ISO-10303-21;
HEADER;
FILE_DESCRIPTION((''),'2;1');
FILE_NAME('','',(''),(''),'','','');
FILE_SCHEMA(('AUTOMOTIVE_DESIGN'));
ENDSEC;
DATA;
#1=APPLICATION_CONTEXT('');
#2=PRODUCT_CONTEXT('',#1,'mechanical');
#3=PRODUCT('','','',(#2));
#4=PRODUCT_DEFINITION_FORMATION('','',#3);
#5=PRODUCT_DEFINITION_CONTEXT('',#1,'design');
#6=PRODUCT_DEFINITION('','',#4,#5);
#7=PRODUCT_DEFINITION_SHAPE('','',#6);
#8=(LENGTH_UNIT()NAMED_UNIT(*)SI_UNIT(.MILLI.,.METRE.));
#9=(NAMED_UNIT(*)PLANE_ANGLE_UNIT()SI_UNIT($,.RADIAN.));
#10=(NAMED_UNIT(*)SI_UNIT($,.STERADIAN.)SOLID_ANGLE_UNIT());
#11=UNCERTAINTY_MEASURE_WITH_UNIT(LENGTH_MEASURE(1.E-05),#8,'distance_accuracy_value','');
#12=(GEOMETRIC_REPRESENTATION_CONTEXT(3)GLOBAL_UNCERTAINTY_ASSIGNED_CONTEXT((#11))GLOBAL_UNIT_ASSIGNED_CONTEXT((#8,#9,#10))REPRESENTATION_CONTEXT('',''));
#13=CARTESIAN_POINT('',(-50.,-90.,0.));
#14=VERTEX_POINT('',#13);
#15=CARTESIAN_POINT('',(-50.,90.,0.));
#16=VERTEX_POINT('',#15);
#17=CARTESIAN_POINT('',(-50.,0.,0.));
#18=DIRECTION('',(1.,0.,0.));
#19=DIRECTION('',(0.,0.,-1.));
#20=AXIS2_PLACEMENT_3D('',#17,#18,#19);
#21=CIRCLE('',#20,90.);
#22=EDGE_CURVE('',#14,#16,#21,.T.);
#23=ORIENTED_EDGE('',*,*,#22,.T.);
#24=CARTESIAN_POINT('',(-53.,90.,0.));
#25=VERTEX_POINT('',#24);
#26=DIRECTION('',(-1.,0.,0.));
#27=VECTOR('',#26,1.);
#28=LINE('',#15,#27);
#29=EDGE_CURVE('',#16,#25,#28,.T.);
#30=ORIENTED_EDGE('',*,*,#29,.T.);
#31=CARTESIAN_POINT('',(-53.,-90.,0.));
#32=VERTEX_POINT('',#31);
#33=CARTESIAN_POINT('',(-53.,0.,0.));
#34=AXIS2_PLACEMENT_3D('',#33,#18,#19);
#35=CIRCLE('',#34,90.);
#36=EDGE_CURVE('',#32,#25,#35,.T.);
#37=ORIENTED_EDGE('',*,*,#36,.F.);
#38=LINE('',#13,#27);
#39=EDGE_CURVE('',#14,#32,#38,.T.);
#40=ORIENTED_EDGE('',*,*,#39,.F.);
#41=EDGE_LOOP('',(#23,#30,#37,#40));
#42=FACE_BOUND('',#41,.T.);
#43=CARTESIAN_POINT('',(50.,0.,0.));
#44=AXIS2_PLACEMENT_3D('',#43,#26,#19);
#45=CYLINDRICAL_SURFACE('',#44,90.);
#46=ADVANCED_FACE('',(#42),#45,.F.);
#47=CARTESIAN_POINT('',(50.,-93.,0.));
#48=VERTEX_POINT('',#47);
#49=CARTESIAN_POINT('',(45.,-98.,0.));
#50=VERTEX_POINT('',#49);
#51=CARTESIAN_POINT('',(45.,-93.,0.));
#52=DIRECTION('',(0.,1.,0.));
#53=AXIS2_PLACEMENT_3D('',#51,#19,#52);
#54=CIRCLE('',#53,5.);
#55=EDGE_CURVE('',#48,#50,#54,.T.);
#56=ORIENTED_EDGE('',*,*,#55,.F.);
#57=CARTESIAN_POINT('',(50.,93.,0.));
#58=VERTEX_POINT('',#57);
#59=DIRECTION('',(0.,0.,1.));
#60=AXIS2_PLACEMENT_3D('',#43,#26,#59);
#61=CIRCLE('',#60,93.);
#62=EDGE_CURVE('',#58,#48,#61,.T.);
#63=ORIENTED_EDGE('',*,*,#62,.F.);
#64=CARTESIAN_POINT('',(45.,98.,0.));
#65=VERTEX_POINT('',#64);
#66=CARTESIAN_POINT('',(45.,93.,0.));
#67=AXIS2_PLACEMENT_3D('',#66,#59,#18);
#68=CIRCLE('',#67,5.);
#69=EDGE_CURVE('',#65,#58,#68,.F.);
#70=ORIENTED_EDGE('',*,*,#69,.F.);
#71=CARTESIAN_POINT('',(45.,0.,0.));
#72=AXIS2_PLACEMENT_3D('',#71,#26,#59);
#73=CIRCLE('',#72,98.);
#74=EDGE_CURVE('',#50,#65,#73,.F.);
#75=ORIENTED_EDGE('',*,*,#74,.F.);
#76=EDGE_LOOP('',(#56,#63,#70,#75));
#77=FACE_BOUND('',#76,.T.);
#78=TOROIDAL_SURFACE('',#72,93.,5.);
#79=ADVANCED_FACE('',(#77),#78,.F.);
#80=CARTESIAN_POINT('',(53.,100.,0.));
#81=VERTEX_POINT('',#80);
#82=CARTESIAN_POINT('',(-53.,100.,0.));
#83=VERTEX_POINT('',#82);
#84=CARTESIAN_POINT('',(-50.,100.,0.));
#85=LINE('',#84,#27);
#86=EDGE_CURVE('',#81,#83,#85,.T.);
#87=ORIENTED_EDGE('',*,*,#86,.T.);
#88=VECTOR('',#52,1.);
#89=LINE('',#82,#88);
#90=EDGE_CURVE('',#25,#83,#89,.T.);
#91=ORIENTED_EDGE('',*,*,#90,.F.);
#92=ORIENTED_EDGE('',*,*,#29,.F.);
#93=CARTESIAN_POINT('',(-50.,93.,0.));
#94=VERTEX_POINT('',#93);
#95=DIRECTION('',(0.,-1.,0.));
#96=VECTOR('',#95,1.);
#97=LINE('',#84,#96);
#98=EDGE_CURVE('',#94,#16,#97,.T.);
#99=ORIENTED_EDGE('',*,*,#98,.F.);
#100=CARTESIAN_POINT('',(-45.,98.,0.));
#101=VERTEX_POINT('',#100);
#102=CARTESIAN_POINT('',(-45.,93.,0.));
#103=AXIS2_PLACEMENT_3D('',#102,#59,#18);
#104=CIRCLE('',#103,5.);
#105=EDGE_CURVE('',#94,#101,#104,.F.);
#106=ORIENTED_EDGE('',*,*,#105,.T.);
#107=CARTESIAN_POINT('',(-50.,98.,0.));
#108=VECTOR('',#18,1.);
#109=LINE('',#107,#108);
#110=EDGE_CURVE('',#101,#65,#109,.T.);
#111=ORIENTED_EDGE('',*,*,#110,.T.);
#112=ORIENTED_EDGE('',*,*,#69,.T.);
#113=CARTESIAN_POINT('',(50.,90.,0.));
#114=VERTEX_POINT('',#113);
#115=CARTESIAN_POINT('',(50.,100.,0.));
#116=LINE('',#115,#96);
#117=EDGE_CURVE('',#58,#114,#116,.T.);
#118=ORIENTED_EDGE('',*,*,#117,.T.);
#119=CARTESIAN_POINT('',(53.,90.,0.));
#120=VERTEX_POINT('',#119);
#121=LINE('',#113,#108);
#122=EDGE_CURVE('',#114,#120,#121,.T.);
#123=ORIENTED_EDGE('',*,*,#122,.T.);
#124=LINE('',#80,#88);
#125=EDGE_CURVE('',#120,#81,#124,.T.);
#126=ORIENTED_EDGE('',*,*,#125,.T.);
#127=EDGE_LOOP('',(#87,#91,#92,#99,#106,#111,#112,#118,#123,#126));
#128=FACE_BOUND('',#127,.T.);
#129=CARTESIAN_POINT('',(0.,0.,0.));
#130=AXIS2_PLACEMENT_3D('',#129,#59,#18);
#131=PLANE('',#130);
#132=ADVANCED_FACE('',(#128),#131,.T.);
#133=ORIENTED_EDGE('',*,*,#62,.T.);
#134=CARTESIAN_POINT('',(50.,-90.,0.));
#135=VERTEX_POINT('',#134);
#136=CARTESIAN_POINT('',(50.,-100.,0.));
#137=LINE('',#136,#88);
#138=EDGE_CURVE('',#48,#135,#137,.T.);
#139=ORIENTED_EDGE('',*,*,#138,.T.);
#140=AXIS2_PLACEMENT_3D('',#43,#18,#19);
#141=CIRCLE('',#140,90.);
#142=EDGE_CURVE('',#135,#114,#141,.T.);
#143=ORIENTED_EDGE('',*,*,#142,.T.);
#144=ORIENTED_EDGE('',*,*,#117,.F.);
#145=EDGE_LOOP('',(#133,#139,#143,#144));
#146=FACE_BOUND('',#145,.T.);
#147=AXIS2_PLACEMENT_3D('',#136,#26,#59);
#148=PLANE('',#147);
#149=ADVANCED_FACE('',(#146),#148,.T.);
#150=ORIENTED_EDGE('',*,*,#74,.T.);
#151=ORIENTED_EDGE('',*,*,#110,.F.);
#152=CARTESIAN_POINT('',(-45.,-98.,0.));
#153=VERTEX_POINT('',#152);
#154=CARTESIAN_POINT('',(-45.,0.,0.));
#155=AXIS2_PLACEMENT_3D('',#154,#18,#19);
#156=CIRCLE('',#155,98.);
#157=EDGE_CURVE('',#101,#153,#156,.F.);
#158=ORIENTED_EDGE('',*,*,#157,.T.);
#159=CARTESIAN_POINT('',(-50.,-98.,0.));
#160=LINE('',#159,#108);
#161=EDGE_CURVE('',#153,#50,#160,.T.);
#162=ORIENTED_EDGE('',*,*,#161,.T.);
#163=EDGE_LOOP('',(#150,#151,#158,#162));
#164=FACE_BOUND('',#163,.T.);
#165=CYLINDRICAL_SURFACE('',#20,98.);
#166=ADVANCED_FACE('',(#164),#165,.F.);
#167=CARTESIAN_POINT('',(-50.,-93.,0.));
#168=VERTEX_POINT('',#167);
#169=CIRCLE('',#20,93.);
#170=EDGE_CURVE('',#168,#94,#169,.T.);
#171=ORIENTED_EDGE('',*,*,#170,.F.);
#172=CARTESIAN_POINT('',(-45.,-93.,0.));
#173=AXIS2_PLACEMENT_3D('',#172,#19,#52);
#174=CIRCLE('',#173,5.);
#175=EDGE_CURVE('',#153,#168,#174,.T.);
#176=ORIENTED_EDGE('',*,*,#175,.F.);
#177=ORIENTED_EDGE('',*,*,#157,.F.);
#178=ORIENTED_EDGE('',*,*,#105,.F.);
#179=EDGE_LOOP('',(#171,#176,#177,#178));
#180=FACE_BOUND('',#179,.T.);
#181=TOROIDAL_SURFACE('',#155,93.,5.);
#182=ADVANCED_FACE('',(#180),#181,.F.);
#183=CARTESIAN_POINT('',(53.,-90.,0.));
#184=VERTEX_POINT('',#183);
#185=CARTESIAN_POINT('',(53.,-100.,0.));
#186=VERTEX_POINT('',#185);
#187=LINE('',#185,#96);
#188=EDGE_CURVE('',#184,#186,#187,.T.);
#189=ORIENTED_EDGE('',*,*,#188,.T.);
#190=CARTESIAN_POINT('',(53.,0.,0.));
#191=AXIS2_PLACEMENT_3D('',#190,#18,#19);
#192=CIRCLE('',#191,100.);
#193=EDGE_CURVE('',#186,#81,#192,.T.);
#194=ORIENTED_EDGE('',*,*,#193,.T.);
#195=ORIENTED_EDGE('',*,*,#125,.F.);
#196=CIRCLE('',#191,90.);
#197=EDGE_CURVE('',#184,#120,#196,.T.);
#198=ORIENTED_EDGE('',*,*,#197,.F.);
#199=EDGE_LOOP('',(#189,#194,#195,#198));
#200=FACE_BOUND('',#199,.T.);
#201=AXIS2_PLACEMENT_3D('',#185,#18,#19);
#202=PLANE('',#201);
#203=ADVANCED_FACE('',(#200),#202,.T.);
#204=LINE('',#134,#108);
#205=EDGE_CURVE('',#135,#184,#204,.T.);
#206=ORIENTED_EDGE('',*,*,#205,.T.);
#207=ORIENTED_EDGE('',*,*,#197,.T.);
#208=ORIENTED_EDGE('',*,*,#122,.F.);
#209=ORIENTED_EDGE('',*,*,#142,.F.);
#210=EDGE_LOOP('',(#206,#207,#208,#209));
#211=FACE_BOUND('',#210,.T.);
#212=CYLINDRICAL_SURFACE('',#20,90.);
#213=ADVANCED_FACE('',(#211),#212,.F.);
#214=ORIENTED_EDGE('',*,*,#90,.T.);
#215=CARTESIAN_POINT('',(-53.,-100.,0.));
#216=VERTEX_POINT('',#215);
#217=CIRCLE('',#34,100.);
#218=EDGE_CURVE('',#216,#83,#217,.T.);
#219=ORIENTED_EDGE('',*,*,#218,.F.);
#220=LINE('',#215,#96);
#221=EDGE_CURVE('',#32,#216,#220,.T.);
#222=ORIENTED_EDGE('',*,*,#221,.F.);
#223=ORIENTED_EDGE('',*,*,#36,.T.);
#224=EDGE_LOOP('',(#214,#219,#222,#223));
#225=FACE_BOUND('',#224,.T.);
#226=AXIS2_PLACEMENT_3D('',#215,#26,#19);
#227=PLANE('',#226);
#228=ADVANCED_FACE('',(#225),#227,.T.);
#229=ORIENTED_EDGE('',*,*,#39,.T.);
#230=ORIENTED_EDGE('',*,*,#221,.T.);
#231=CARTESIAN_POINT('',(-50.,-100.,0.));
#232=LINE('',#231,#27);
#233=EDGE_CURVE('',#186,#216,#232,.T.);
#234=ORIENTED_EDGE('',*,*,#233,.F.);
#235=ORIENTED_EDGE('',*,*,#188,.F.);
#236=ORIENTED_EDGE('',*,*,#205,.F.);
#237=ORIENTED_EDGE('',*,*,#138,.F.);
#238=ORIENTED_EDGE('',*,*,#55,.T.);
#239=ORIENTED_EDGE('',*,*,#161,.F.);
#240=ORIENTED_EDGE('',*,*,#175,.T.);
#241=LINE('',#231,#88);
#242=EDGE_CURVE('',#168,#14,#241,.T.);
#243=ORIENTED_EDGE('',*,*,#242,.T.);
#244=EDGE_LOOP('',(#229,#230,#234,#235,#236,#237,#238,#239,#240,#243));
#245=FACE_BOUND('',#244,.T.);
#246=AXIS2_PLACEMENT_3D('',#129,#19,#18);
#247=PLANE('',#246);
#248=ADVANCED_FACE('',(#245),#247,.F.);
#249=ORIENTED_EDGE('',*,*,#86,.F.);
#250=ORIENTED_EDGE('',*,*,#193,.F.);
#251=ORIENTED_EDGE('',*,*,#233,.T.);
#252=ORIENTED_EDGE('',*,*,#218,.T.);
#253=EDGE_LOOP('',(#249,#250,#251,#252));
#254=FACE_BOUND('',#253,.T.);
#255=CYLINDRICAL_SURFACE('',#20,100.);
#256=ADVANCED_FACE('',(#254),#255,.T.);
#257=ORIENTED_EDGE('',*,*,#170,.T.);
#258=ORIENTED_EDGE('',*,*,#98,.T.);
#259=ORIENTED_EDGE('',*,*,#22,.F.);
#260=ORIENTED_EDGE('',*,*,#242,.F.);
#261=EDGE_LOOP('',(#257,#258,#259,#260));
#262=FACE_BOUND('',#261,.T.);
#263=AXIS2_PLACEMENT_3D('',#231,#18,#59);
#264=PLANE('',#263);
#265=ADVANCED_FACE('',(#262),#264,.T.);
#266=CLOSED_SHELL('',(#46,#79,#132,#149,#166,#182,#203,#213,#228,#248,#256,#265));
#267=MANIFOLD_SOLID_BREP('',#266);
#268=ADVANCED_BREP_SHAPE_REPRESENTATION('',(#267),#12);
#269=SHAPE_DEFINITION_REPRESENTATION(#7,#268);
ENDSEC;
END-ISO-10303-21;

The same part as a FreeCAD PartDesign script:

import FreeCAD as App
import Part
import Sketcher

V = App.Vector


def edges_at(feature, points):
    """Names of the edges that pass closest to the given points."""
    edges = feature.Shape.Edges
    near = lambda p: min(range(len(edges)), key=lambda i: edges[i].distToShape(Part.Vertex(*p))[0])
    return sorted({f"Edge{near(p) + 1}" for p in points})


def add_polygon(sketch, points):
    """Adds a closed chain of lines whose ends are joined by coincident constraints."""
    first, n = sketch.GeometryCount, len(points)
    for a, b in zip(points, points[1:] + points[:1]):
        sketch.addGeometry(Part.LineSegment(App.Vector(*a, 0), App.Vector(*b, 0)), False)
    for i in range(n):
        sketch.addConstraint(Sketcher.Constraint("Coincident", first + i, 2, first + (i + 1) % n, 1))

doc = App.newDocument("Part")
body = doc.addObject("PartDesign::Body", "Body")

sketch1 = doc.addObject("Sketcher::SketchObject", "Sketch")
body.addObject(sketch1)
sketch1.AttachmentSupport = (doc.XY_Plane, [""])
sketch1.MapMode = "FlatFace"
add_polygon(sketch1, [(-50, 100), (-50, 98), (50, 98), (50, 100)])
sketch1.addConstraint(Sketcher.Constraint("Vertical", 0))
sketch1.addConstraint(Sketcher.Constraint("Horizontal", 1))
sketch1.addConstraint(Sketcher.Constraint("Vertical", 2))
sketch1.addConstraint(Sketcher.Constraint("Horizontal", 3))
sketch1.addConstraint(Sketcher.Constraint("DistanceX", 1, 1, 1, 2, 100.0))
sketch1.addConstraint(Sketcher.Constraint("DistanceY", 0, 2, 0, 1, 2.0))
sketch1.addConstraint(Sketcher.Constraint("DistanceX", 0, 2, -1, 1, 50.0))
sketch1.addConstraint(Sketcher.Constraint("DistanceY", -1, 1, 0, 2, 98.0))
revolution = doc.addObject("PartDesign::Revolution", "Revolution")
body.addObject(revolution)
revolution.Profile = sketch1
revolution.ReferenceAxis = (sketch1, ["H_Axis"])
revolution.Angle = 180
revolution.Reversed = True

sketch2 = doc.addObject("Sketcher::SketchObject", "Sketch001")
body.addObject(sketch2)
sketch2.AttachmentSupport = (doc.XY_Plane, [""])
sketch2.MapMode = "FlatFace"
add_polygon(sketch2, [(50, 100), (50, 90), (53, 90), (53, 100)])
sketch2.addConstraint(Sketcher.Constraint("Vertical", 0))
sketch2.addConstraint(Sketcher.Constraint("Horizontal", 1))
sketch2.addConstraint(Sketcher.Constraint("Vertical", 2))
sketch2.addConstraint(Sketcher.Constraint("Horizontal", 3))
sketch2.addConstraint(Sketcher.Constraint("DistanceX", 1, 1, 1, 2, 3.0))
sketch2.addConstraint(Sketcher.Constraint("DistanceY", 0, 2, 0, 1, 10.0))
sketch2.addConstraint(Sketcher.Constraint("DistanceX", -1, 1, 0, 2, 50.0))
sketch2.addConstraint(Sketcher.Constraint("DistanceY", -1, 1, 0, 2, 90.0))
revolution2 = doc.addObject("PartDesign::Revolution", "Revolution001")
body.addObject(revolution2)
revolution2.Profile = sketch2
revolution2.ReferenceAxis = (sketch2, ["H_Axis"])
revolution2.Angle = 180
revolution2.Reversed = True
doc.recompute()

fillet = doc.addObject("PartDesign::Fillet", "Fillet")
body.addObject(fillet)
fillet.Base = (revolution2, edges_at(revolution2, [(50, 0, -98)]))
fillet.Radius = 5
doc.recompute()

mirrored = doc.addObject("PartDesign::Mirrored", "Mirrored")
body.addObject(mirrored)
mirrored.Originals = [revolution2]
mirrored.MirrorPlane = (doc.YZ_Plane, [""])
body.Tip = mirrored
doc.recompute()

fillet2 = doc.addObject("PartDesign::Fillet", "Fillet001")
body.addObject(fillet2)
fillet2.Base = (mirrored, edges_at(mirrored, [(-50, 0, -98)]))
fillet2.Radius = 5

doc.recompute()
